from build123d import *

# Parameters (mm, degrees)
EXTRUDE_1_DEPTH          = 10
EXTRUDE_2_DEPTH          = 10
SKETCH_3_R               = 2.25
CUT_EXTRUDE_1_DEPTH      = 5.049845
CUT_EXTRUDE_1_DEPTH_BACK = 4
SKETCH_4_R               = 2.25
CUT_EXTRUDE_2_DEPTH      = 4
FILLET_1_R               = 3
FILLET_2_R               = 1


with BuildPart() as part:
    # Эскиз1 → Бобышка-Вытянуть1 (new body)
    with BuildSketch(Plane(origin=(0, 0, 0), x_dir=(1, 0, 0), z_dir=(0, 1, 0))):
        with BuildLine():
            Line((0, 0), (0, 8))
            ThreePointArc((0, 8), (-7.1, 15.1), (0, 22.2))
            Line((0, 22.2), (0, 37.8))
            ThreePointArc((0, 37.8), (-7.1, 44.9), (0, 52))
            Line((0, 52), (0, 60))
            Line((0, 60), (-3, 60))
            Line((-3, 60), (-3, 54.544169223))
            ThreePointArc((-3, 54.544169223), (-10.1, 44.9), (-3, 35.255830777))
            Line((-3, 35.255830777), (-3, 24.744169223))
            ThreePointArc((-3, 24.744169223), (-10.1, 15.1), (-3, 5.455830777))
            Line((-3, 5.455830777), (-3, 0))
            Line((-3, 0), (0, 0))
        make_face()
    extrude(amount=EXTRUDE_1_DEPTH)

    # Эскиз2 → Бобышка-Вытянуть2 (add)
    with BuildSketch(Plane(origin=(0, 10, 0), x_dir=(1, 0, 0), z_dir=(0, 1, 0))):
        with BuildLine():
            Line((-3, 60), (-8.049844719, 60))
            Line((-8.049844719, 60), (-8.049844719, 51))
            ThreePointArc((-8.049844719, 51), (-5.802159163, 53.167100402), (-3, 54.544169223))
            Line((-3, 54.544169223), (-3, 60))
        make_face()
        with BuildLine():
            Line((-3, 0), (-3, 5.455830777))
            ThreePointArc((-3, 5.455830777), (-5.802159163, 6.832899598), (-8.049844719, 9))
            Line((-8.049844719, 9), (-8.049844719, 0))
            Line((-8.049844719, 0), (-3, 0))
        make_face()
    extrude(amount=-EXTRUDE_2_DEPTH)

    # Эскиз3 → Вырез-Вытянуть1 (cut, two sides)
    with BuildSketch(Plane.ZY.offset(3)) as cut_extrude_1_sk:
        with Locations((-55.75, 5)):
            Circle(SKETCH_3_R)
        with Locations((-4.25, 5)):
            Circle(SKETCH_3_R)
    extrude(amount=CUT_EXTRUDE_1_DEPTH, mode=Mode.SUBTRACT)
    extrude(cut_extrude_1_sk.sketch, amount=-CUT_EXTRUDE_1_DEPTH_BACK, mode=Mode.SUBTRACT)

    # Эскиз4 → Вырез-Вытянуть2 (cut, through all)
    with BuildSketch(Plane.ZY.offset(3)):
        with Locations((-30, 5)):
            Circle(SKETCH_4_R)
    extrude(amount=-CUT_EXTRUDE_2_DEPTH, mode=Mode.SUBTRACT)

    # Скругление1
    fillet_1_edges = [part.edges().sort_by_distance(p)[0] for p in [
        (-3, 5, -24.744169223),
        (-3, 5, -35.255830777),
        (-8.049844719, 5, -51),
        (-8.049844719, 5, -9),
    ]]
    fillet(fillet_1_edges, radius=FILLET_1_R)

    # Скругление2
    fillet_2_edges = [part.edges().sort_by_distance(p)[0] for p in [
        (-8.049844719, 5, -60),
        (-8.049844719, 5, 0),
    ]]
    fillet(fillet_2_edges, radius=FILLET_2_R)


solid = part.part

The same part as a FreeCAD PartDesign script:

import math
import FreeCAD as App
import Part
import Sketcher
Q = App.Units.Quantity


def edges_at(feature, points):
    """Names of the edges that pass closest to the given points."""
    edges = feature.Shape.Edges
    near = lambda p: min(range(len(edges)), key=lambda i: edges[i].distToShape(Part.Vertex(*p))[0])
    return sorted({f"Edge{near(p) + 1}" for p in points})

doc = App.newDocument("Part")
params = doc.addObject("Spreadsheet::Sheet", "Params")
for row, (alias, value) in enumerate([
    ("sketch1_radius", "7.1 mm"),
    ("sketch1_radius2", "10.1 mm"),
    ("sketch1_width", "3 mm"),
    ("sketch1_height", "8 mm"),
    ("sketch1_height2", "15.6 mm"),
    ("pad1_length", "10 mm"),
    ("sketch2_radius", "10.1 mm"),
    ("sketch2_height", "9 mm"),
    ("pad2_length", "10 mm"),
    ("sketch3_diameter", "4.5 mm"),
    ("sketch4_diameter", "4.5 mm"),
    ("fillet_radius", "3 mm"),
    ("fillet2_radius", "1 mm"),
], start=1):
    params.set(f"A{row}", alias)
    params.set(f"B{row}", "=" + value)
    params.setAlias(f"B{row}", alias)

body = doc.addObject("PartDesign::Body", "Body")

sketch1 = body.newObject("Sketcher::SketchObject", "Sketch")
sketch1.AttachmentSupport = (doc.getObject("XZ_Plane"), [""])
sketch1.MapMode = "FlatFace"
sketch1.addGeometry(Part.LineSegment(App.Vector(0, 0, 0), App.Vector(0, -8, 0)), False)
sketch1.addGeometry(Part.ArcOfCircle(Part.Circle(App.Vector(0, -15.1, 0), App.Vector(0, 0, 1), 7.1), math.radians(90), math.radians(270)), False)
sketch1.addGeometry(Part.LineSegment(App.Vector(0, -22.2, 0), App.Vector(0, -37.8, 0)), False)
sketch1.addGeometry(Part.ArcOfCircle(Part.Circle(App.Vector(0, -44.9, 0), App.Vector(0, 0, 1), 7.1), math.radians(90), math.radians(270)), False)
sketch1.addGeometry(Part.LineSegment(App.Vector(0, -52, 0), App.Vector(0, -60, 0)), False)
sketch1.addGeometry(Part.LineSegment(App.Vector(0, -60, 0), App.Vector(-3, -60, 0)), False)
sketch1.addGeometry(Part.LineSegment(App.Vector(-3, -60, 0), App.Vector(-3, -54.5, 0)), False)
sketch1.addGeometry(Part.ArcOfCircle(Part.Circle(App.Vector(0, -44.9, 0), App.Vector(0, 0, 1), 10.1), math.radians(107), math.radians(253)), False)
sketch1.addGeometry(Part.LineSegment(App.Vector(-3, -35.3, 0), App.Vector(-3, -24.7, 0)), False)
sketch1.addGeometry(Part.ArcOfCircle(Part.Circle(App.Vector(0, -15.1, 0), App.Vector(0, 0, 1), 10.1), math.radians(107), math.radians(253)), False)
sketch1.addGeometry(Part.LineSegment(App.Vector(-3, -5.5, 0), App.Vector(-3, 0, 0)), False)
sketch1.addGeometry(Part.LineSegment(App.Vector(-3, 0, 0), App.Vector(0, 0, 0)), False)
sketch1.addConstraint(Sketcher.Constraint("Coincident", 0, 2, 1, 1))
sketch1.addConstraint(Sketcher.Constraint("Coincident", 1, 2, 2, 1))
sketch1.addConstraint(Sketcher.Constraint("Coincident", 2, 2, 3, 1))
sketch1.addConstraint(Sketcher.Constraint("Coincident", 3, 2, 4, 1))
sketch1.addConstraint(Sketcher.Constraint("Coincident", 4, 2, 5, 1))
sketch1.addConstraint(Sketcher.Constraint("Coincident", 5, 2, 6, 1))
sketch1.addConstraint(Sketcher.Constraint("Coincident", 6, 2, 7, 2))
sketch1.addConstraint(Sketcher.Constraint("Coincident", 7, 1, 8, 1))
sketch1.addConstraint(Sketcher.Constraint("Coincident", 8, 2, 9, 2))
sketch1.addConstraint(Sketcher.Constraint("Coincident", 9, 1, 10, 1))
sketch1.addConstraint(Sketcher.Constraint("Coincident", 10, 2, 11, 1))
sketch1.addConstraint(Sketcher.Constraint("Coincident", 11, 2, 0, 1))
sketch1.addConstraint(Sketcher.Constraint("Vertical", 0))
sketch1.addConstraint(Sketcher.Constraint("Vertical", 2))
sketch1.addConstraint(Sketcher.Constraint("Vertical", 4))
sketch1.addConstraint(Sketcher.Constraint("Horizontal", 5))
sketch1.addConstraint(Sketcher.Constraint("Vertical", 6))
sketch1.addConstraint(Sketcher.Constraint("Vertical", 8))
sketch1.addConstraint(Sketcher.Constraint("Vertical", 10))
sketch1.addConstraint(Sketcher.Constraint("Horizontal", 11))
sketch1.addConstraint(Sketcher.Constraint("Coincident", 11, 2, -1, 1))
sketch1.addConstraint(Sketcher.Constraint("Coincident", 7, 3, 3, 3))
sketch1.addConstraint(Sketcher.Constraint("Coincident", 9, 3, 1, 3))
sketch1.addConstraint(Sketcher.Constraint("Equal", 1, 3))
sketch1.addConstraint(Sketcher.Constraint("Equal", 7, 9))
sketch1.addConstraint(Sketcher.Constraint("PointOnObject", 1, 3, -2))
sketch1.addConstraint(Sketcher.Constraint("PointOnObject", 3, 3, -2))
sketch1.addConstraint(Sketcher.Constraint("PointOnObject", 1, 2, -2))
sketch1.addConstraint(Sketcher.Constraint("PointOnObject", 3, 2, -2))
sketch1.addConstraint(Sketcher.Constraint("Vertical", 6, 2, 7, 1))
sketch1.addConstraint(Sketcher.Constraint("Vertical", 8, 2, 9, 1))
sketch1.addConstraint(Sketcher.Constraint("Equal", 0, 4))
sketch1.addConstraint(Sketcher.Constraint("Radius", 1, Q("7.1 mm")))
sketch1.addConstraint(Sketcher.Constraint("Radius", 7, Q("10.1 mm")))
sketch1.addConstraint(Sketcher.Constraint("DistanceX", 5, 2, 5, 1, Q("3 mm")))
sketch1.addConstraint(Sketcher.Constraint("DistanceY", 0, 2, 0, 1, Q("8 mm")))
sketch1.addConstraint(Sketcher.Constraint("DistanceY", 2, 2, 2, 1, Q("15.6 mm")))
sketch1.setExpression("Constraints[32]", "Params.sketch1_radius")
sketch1.setExpression("Constraints[33]", "Params.sketch1_radius2")
sketch1.setExpression("Constraints[34]", "Params.sketch1_width")
sketch1.setExpression("Constraints[35]", "Params.sketch1_height")
sketch1.setExpression("Constraints[36]", "Params.sketch1_height2")
pad1 = body.newObject("PartDesign::Pad", "Pad")
pad1.Profile = sketch1
pad1.setExpression("Length", "Params.pad1_length")
pad1.Reversed = True

sketch2 = body.newObject("Sketcher::SketchObject", "Sketch001")
sketch2.AttachmentSupport = (doc.getObject("XZ_Plane"), [""])
sketch2.MapMode = "FlatFace"
sketch2.AttachmentOffset = App.Placement(App.Vector(0, 0, -10), App.Rotation())
sketch2.addGeometry(Part.LineSegment(App.Vector(-3, -60, 0), App.Vector(-8, -60, 0)), False)
sketch2.addGeometry(Part.LineSegment(App.Vector(-8, -60, 0), App.Vector(-8, -51, 0)), False)
sketch2.addGeometry(Part.ArcOfCircle(Part.Circle(App.Vector(0, -45, 0), App.Vector(0, 0, 1), 10), math.radians(-143), math.radians(-107)), False)
sketch2.addGeometry(Part.LineSegment(App.Vector(-3, -55, 0), App.Vector(-3, -60, 0)), False)
sketch2.addGeometry(Part.LineSegment(App.Vector(-3, 0, 0), App.Vector(-3, -5, 0)), False)
sketch2.addGeometry(Part.ArcOfCircle(Part.Circle(App.Vector(0, -15, 0), App.Vector(0, 0, 1), 10), math.radians(107), math.radians(143)), False)
sketch2.addGeometry(Part.LineSegment(App.Vector(-8, -9, 0), App.Vector(-8, 0, 0)), False)
sketch2.addGeometry(Part.LineSegment(App.Vector(-8, 0, 0), App.Vector(-3, 0, 0)), False)
sketch2.addConstraint(Sketcher.Constraint("Coincident", 0, 2, 1, 1))
sketch2.addConstraint(Sketcher.Constraint("Coincident", 1, 2, 2, 1))
sketch2.addConstraint(Sketcher.Constraint("Coincident", 2, 2, 3, 1))
sketch2.addConstraint(Sketcher.Constraint("Coincident", 3, 2, 0, 1))
sketch2.addConstraint(Sketcher.Constraint("Coincident", 4, 2, 5, 1))
sketch2.addConstraint(Sketcher.Constraint("Coincident", 5, 2, 6, 1))
sketch2.addConstraint(Sketcher.Constraint("Coincident", 6, 2, 7, 1))
sketch2.addConstraint(Sketcher.Constraint("Coincident", 7, 2, 4, 1))
sketch2.addConstraint(Sketcher.Constraint("Horizontal", 0))
sketch2.addConstraint(Sketcher.Constraint("Vertical", 1))
sketch2.addConstraint(Sketcher.Constraint("Vertical", 3))
sketch2.addConstraint(Sketcher.Constraint("Vertical", 4))
sketch2.addConstraint(Sketcher.Constraint("Vertical", 6))
sketch2.addConstraint(Sketcher.Constraint("Horizontal", 7))
sketch2.addConstraint(Sketcher.Constraint("Equal", 2, 5))
sketch2.addConstraint(Sketcher.Constraint("PointOnObject", 2, 3, -2))
sketch2.addConstraint(Sketcher.Constraint("PointOnObject", 5, 3, -2))
sketch2.addConstraint(Sketcher.Constraint("PointOnObject", 6, 2, -1))
sketch2.addConstraint(Sketcher.Constraint("Vertical", 3, 2, 4, 2))
sketch2.addConstraint(Sketcher.Constraint("Vertical", 1, 2, 5, 2))
sketch2.addConstraint(Sketcher.Constraint("Equal", 3, 4))
sketch2.addConstraint(Sketcher.Constraint("Radius", 2, Q("10.1 mm")))
sketch2.addConstraint(Sketcher.Constraint("DistanceY", 1, 1, 1, 2, Q("9 mm")))
sketch2.addConstraint(Sketcher.Constraint("DistanceY", 0, 2, -1, 1, Q("60 mm")))
sketch2.addConstraint(Sketcher.Constraint("DistanceX", 2, 2, -1, 1, Q("3 mm")))
sketch2.addConstraint(Sketcher.Constraint("DistanceY", 2, 3, -1, 1, Q("44.9 mm")))
sketch2.setExpression("Constraints[21]", "Params.sketch2_radius")
sketch2.setExpression("Constraints[22]", "Params.sketch2_height")
pad2 = body.newObject("PartDesign::Pad", "Pad001")
pad2.Profile = sketch2
pad2.setExpression("Length", "Params.pad2_length")

sketch3 = body.newObject("Sketcher::SketchObject", "Sketch002")
sketch3.AttachmentSupport = (doc.getObject("YZ_Plane"), [""])
sketch3.MapMode = "FlatFace"
sketch3.AttachmentOffset = App.Placement(App.Vector(0, 0, -3), App.Rotation())
sketch3.addGeometry(Part.Circle(App.Vector(5, -55.8, 0), App.Vector(0, 0, 1), 2.2), False)
sketch3.addGeometry(Part.Circle(App.Vector(5, -4.2, 0), App.Vector(0, 0, 1), 2.2), False)
sketch3.addConstraint(Sketcher.Constraint("Equal", 0, 1))
sketch3.addConstraint(Sketcher.Constraint("Vertical", 0, 3, 1, 3))
sketch3.addConstraint(Sketcher.Constraint("Diameter", 0, Q("4.5 mm")))
sketch3.addConstraint(Sketcher.Constraint("DistanceX", -1, 1, 0, 3, Q("5 mm")))
sketch3.addConstraint(Sketcher.Constraint("DistanceY", 0, 3, 1, 3, Q("51.5 mm")))
sketch3.addConstraint(Sketcher.Constraint("DistanceY", 0, 3, -1, 1, Q("55.75 mm")))
sketch3.setExpression("Constraints[2]", "Params.sketch3_diameter")
pocket1 = body.newObject("PartDesign::Pocket", "Pocket")
pocket1.Profile = sketch3
pocket1.Type = "ThroughAll"
pocket1.Midplane = True

sketch4 = body.newObject("Sketcher::SketchObject", "Sketch003")
sketch4.AttachmentSupport = (doc.getObject("YZ_Plane"), [""])
sketch4.MapMode = "FlatFace"
sketch4.AttachmentOffset = App.Placement(App.Vector(0, 0, -3), App.Rotation())
sketch4.addGeometry(Part.Circle(App.Vector(5, -30, 0), App.Vector(0, 0, 1), 2.2), False)
sketch4.addConstraint(Sketcher.Constraint("Diameter", 0, Q("4.5 mm")))
sketch4.addConstraint(Sketcher.Constraint("DistanceX", -1, 1, 0, 3, Q("5 mm")))
sketch4.addConstraint(Sketcher.Constraint("DistanceY", 0, 3, -1, 1, Q("30 mm")))
sketch4.setExpression("Constraints[0]", "Params.sketch4_diameter")
pocket2 = body.newObject("PartDesign::Pocket", "Pocket001")
pocket2.Profile = sketch4
pocket2.Type = "ThroughAll"
pocket2.Reversed = True
doc.recompute()

fillet = body.newObject("PartDesign::Fillet", "Fillet")
fillet.Base = (pocket2, edges_at(pocket2, [
    (-3, 5, -24.744),
    (-3, 5, -35.256),
    (-8.05, 5, -51),
    (-8.05, 5, -9),
]))
fillet.setExpression("Radius", "Params.fillet_radius")
doc.recompute()

fillet2 = body.newObject("PartDesign::Fillet", "Fillet001")
fillet2.Base = (fillet, edges_at(fillet, [(-8.05, 5, -60), (-8.05, 5, 0)]))
fillet2.setExpression("Radius", "Params.fillet2_radius")

doc.recompute()
